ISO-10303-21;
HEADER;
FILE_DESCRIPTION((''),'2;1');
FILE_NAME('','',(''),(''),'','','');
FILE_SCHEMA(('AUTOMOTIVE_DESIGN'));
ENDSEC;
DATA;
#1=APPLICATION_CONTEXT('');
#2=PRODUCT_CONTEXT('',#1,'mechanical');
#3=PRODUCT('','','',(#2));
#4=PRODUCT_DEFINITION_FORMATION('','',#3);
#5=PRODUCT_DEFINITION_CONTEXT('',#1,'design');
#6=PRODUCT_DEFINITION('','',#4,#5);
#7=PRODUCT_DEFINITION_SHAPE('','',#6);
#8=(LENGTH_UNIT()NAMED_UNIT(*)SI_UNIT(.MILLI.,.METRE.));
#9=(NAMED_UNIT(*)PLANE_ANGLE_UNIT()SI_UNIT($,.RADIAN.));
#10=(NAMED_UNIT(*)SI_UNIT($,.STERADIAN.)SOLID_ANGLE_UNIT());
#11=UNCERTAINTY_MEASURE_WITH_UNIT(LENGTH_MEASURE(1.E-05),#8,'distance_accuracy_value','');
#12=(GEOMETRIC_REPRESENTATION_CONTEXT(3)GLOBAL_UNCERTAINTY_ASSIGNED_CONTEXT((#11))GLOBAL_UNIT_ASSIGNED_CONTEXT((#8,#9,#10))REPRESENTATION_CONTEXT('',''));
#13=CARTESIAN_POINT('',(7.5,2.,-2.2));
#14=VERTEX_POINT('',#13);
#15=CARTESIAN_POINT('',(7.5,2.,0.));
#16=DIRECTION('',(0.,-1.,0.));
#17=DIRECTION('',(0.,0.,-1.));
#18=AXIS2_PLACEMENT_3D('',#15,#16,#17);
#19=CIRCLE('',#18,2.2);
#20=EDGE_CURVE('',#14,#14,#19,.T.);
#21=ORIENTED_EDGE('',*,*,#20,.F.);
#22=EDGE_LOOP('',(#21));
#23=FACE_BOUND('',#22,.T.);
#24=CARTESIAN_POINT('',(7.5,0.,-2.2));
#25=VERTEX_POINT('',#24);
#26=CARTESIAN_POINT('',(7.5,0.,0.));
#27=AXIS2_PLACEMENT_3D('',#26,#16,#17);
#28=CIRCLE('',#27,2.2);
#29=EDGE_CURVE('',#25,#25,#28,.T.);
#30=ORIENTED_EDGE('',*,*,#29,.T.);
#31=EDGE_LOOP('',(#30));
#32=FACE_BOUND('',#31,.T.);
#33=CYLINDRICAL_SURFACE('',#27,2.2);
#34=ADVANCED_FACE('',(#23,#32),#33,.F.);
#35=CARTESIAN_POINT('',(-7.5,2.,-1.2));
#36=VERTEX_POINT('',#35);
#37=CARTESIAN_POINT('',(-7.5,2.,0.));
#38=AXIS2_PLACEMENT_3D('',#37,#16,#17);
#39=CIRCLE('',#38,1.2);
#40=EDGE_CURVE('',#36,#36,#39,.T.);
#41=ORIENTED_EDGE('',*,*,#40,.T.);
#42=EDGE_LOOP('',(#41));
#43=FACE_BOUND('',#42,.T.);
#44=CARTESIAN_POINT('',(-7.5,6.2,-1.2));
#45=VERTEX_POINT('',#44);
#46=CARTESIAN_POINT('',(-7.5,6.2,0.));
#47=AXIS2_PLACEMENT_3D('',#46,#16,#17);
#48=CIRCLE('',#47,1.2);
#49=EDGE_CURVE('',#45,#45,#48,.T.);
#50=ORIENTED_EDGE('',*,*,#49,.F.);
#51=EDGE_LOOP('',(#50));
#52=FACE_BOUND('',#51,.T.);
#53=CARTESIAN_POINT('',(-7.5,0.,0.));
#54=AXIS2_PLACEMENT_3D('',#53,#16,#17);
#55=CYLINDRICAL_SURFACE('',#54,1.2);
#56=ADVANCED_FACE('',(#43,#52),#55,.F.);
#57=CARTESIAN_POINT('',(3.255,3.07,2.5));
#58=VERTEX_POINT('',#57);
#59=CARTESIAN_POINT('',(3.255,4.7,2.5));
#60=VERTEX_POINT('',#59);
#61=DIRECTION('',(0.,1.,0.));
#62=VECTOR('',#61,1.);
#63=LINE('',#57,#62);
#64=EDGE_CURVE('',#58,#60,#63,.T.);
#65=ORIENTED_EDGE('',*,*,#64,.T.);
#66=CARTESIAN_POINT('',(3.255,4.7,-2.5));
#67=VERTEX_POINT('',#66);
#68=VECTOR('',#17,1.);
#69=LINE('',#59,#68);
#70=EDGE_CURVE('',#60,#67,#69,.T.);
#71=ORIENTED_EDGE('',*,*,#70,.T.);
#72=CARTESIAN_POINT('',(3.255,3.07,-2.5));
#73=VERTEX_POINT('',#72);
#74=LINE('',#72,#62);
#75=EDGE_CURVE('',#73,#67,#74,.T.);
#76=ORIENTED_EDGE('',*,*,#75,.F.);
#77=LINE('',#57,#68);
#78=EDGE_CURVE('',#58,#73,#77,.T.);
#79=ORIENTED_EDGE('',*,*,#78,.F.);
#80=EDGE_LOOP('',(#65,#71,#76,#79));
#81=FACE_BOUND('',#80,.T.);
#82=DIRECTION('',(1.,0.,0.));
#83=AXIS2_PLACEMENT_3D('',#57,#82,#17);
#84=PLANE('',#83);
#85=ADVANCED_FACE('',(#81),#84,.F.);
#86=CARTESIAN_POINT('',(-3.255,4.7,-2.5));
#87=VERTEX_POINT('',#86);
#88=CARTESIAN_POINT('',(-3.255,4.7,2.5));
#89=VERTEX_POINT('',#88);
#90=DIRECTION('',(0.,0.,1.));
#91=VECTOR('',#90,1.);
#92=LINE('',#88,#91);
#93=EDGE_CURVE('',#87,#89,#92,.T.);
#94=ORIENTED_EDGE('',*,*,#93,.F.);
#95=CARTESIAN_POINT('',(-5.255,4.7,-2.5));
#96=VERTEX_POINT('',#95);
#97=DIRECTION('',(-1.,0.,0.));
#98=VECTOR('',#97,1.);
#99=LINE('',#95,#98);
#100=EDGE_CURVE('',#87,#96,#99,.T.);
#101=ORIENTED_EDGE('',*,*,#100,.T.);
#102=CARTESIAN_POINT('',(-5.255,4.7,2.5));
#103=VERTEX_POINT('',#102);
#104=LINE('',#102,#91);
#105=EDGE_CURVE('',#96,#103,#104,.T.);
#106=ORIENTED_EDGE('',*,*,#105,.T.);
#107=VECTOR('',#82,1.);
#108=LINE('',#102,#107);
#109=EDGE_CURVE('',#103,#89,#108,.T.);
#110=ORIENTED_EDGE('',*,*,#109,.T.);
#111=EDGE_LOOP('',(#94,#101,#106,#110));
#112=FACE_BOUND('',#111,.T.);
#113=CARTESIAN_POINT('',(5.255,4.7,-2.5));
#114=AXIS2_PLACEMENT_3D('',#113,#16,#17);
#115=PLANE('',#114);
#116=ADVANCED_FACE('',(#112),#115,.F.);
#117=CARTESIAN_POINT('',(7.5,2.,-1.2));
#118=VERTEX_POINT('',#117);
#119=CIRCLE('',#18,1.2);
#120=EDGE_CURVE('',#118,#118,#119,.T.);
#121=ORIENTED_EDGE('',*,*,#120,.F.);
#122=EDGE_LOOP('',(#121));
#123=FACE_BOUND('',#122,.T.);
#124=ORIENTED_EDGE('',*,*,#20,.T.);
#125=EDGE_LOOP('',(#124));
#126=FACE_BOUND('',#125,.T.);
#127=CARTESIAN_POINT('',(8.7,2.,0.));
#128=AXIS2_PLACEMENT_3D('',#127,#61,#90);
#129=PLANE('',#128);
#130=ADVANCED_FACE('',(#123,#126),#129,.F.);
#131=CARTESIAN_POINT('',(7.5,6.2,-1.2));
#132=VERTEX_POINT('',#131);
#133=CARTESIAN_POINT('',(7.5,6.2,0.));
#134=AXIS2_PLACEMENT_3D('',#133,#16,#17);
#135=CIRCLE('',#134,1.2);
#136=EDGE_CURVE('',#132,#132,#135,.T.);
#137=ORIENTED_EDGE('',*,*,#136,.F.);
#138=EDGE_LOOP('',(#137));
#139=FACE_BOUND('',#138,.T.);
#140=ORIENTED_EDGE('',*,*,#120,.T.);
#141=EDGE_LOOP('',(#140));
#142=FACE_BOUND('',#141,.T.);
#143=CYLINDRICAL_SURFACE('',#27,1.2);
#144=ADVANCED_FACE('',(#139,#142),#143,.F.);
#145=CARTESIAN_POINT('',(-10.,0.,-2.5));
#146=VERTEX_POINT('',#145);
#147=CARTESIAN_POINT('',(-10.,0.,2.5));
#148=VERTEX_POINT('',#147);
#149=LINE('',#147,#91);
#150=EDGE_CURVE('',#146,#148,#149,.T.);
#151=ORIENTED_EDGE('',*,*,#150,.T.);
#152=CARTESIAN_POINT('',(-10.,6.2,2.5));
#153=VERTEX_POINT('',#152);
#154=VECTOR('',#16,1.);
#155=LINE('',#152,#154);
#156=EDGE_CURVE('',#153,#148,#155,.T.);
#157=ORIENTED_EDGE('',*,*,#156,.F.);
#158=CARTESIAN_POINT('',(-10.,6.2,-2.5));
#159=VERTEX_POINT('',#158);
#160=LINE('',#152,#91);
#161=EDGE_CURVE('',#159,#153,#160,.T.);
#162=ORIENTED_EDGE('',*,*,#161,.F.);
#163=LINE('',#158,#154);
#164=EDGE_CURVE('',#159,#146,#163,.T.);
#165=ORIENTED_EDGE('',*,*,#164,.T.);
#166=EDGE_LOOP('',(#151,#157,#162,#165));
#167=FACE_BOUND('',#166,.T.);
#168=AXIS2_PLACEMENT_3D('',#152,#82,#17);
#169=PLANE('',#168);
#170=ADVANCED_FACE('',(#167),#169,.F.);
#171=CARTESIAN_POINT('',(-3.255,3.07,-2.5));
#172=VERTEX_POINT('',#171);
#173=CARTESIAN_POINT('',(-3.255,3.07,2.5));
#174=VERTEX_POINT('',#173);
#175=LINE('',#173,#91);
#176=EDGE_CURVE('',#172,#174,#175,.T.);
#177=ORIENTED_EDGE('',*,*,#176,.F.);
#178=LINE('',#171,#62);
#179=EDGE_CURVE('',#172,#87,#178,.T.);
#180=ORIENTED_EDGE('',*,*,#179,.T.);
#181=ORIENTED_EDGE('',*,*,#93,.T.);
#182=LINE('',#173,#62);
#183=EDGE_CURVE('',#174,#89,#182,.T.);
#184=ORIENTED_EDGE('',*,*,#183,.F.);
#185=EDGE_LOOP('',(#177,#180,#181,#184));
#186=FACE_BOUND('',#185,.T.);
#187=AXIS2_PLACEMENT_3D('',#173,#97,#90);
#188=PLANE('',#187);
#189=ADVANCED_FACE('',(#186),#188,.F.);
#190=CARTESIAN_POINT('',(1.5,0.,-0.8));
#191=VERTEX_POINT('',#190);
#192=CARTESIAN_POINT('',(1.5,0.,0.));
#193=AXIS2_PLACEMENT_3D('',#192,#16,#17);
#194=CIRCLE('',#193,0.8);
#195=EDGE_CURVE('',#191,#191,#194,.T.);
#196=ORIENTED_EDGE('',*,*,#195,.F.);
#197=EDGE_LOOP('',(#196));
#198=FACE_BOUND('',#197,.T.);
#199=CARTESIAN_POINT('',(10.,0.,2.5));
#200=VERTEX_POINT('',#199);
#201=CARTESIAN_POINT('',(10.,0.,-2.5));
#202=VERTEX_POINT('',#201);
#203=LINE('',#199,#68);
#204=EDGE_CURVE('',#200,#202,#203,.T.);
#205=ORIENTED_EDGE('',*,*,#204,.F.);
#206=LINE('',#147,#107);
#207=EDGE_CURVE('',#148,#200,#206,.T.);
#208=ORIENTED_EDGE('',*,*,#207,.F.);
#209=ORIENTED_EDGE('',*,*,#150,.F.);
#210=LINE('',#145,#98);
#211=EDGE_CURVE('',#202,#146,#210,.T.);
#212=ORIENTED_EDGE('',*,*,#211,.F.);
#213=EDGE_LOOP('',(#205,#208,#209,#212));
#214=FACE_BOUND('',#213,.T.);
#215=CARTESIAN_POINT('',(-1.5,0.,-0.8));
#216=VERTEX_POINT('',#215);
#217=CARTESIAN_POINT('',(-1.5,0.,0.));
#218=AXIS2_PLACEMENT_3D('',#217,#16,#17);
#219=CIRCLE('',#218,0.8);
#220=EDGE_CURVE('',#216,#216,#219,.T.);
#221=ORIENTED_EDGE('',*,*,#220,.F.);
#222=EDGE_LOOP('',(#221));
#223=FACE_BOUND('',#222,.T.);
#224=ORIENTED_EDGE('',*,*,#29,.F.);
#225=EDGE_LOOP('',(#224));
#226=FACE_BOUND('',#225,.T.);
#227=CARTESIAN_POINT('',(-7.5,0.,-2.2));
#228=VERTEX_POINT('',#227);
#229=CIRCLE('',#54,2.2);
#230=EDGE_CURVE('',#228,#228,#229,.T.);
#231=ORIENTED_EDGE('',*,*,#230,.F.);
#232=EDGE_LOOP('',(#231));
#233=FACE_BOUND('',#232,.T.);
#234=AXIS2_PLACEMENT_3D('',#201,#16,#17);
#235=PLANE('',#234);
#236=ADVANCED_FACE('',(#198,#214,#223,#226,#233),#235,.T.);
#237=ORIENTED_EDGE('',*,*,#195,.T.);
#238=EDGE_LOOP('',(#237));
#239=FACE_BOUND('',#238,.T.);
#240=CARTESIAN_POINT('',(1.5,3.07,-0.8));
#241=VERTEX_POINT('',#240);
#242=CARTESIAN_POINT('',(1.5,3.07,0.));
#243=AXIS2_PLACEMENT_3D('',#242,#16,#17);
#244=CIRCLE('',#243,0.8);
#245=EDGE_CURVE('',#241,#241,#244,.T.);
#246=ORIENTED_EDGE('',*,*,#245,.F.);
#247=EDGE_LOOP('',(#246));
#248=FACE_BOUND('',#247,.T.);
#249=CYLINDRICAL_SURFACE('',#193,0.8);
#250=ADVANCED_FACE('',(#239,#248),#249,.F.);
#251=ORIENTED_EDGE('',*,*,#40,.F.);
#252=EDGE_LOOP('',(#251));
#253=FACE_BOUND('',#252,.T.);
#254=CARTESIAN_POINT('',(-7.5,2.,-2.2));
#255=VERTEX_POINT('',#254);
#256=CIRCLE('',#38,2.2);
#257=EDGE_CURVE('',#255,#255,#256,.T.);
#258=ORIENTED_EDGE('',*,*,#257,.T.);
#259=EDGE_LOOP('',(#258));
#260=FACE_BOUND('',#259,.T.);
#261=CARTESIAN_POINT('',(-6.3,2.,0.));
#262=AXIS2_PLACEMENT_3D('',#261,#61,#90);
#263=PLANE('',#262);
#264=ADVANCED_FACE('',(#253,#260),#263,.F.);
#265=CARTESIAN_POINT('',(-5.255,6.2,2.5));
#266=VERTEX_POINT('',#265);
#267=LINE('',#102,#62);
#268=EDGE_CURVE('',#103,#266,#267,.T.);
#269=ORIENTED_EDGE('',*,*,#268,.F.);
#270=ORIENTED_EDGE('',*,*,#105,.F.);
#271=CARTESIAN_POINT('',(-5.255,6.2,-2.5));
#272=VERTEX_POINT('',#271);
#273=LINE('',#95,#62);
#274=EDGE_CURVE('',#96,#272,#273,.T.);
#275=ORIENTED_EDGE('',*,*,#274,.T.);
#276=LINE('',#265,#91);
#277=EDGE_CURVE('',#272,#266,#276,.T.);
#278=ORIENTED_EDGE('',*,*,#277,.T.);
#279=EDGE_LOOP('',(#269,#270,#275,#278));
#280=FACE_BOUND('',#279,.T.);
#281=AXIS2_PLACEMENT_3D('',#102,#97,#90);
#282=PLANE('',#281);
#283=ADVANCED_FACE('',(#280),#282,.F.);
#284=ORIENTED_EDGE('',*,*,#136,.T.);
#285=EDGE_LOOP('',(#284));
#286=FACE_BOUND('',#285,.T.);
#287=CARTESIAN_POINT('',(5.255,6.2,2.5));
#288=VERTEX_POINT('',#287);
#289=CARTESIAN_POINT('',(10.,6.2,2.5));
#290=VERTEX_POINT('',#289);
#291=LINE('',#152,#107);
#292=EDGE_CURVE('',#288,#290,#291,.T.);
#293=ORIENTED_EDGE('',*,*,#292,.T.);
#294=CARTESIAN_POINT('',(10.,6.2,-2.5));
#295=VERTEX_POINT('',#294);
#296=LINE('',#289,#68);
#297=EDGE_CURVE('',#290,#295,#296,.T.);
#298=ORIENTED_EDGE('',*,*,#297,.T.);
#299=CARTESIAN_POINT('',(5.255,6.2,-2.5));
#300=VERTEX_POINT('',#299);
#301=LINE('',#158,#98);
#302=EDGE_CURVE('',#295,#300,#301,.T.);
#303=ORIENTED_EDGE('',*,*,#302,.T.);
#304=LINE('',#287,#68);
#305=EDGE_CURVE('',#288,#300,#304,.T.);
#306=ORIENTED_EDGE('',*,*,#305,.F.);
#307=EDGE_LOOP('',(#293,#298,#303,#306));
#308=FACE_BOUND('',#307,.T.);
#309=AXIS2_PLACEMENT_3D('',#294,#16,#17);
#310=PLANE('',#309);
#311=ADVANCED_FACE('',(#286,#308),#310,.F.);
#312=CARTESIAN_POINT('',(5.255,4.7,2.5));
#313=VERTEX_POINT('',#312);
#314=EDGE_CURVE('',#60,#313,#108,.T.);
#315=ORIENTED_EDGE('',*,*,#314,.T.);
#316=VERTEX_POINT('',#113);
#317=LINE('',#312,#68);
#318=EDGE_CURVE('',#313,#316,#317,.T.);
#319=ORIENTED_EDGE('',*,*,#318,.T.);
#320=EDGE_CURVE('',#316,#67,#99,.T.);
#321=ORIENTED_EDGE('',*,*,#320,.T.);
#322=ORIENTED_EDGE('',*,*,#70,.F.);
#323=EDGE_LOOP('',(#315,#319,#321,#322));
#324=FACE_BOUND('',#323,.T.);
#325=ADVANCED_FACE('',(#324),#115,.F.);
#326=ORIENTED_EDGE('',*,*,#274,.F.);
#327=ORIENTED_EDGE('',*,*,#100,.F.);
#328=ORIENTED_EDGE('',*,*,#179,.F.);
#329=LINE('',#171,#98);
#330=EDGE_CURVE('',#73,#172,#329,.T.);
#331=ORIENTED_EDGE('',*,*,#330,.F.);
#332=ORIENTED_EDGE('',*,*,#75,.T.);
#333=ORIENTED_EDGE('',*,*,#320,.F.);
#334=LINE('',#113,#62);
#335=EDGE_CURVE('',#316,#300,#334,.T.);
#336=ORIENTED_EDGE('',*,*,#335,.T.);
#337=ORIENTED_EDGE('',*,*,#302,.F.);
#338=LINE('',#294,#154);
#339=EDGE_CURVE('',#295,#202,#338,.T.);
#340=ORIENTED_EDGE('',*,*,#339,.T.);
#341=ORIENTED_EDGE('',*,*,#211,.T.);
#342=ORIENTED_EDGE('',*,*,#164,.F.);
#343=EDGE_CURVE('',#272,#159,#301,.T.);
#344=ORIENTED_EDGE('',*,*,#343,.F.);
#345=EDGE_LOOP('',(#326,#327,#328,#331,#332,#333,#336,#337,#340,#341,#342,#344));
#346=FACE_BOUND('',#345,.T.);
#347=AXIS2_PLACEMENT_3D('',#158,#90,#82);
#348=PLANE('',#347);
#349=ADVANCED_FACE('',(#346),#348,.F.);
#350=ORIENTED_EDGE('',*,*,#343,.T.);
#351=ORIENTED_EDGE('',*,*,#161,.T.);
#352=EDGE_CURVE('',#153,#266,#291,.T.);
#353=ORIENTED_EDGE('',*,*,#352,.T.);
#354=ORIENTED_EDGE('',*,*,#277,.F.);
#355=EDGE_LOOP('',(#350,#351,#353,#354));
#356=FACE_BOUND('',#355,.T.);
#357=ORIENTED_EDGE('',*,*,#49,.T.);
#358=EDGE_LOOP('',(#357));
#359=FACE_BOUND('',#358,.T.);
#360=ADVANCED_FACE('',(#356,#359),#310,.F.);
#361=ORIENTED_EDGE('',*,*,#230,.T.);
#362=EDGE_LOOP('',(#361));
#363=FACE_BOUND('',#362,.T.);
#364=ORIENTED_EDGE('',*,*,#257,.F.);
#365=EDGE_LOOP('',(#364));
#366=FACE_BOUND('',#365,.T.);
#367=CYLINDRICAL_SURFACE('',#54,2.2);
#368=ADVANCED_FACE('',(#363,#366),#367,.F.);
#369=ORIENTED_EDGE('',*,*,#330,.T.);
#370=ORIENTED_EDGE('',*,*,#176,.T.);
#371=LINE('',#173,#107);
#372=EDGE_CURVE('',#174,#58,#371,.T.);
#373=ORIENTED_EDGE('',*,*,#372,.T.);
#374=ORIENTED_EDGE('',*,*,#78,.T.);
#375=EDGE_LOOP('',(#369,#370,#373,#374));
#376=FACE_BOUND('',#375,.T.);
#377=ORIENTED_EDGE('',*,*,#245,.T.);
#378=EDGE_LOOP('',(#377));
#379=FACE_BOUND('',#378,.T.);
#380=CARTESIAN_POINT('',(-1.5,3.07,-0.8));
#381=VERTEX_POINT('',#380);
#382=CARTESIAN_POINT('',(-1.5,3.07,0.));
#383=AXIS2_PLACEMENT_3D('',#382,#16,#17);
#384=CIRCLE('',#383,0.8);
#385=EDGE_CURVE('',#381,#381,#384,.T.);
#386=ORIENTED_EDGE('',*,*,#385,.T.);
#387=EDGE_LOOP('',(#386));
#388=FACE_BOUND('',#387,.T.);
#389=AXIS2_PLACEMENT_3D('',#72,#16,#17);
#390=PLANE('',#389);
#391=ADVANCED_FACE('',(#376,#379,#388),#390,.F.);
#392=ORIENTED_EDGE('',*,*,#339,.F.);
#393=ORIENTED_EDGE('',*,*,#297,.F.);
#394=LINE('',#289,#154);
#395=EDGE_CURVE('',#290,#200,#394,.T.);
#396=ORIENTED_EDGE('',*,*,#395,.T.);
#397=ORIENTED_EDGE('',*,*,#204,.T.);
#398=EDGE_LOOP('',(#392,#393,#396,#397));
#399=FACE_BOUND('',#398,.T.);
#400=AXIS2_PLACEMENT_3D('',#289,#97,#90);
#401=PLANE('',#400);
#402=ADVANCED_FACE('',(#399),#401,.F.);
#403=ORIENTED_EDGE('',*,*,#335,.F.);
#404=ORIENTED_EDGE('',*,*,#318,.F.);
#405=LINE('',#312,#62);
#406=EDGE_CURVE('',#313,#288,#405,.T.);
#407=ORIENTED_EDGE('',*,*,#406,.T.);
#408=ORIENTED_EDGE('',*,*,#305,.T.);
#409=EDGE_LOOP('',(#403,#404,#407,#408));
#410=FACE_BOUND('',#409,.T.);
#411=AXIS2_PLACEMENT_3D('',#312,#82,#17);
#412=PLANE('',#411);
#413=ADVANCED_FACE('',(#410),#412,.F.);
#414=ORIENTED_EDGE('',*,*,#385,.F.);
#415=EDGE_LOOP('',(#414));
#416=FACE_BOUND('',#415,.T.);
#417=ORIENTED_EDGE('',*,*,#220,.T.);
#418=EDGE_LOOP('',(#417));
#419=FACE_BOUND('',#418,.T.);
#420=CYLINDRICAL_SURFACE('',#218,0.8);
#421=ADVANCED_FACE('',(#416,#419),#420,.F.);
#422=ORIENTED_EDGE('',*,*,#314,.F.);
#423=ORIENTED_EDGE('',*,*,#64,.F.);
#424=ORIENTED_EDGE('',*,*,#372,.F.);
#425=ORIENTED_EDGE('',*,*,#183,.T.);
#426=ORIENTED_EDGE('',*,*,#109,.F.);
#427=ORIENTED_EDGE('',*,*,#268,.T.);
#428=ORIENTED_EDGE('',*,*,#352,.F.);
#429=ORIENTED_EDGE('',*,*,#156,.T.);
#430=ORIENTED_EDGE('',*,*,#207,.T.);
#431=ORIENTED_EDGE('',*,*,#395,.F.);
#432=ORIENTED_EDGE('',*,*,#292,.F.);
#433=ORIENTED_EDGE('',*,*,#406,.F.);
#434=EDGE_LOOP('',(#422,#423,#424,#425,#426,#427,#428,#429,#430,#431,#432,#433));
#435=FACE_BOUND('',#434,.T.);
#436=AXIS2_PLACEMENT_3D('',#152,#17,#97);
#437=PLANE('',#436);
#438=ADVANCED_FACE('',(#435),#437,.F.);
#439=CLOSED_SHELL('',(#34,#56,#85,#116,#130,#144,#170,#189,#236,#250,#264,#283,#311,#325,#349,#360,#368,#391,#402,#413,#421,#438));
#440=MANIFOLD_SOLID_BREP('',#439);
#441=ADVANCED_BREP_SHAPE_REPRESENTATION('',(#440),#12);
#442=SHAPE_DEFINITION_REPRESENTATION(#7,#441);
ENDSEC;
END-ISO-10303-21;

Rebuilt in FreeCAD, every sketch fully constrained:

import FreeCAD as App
import Part
import Sketcher

V = App.Vector

doc = App.newDocument("Part")
body = doc.addObject("PartDesign::Body", "Body")

# Sketch on XZ plane
sketch1 = body.newObject("Sketcher::SketchObject", "Sketch")
sketch1.AttachmentSupport = (doc.getObject("XZ_Plane"), [""])
sketch1.MapMode = "FlatFace"
sketch1.addGeometry([
    Part.LineSegment(V(-10, -2.5, 0), V(-10, 2.5, 0)),
    Part.LineSegment(V(-10, 2.5, 0), V(10, 2.5, 0)),
    Part.LineSegment(V(10, 2.5, 0), V(10, -2.5, 0)),
    Part.LineSegment(V(10, -2.5, 0), V(-10, -2.5, 0)),
], False)
sketch1.addConstraint([
    Sketcher.Constraint("Coincident", 0, 2, 1, 1),
    Sketcher.Constraint("Coincident", 1, 2, 2, 1),
    Sketcher.Constraint("Coincident", 2, 2, 3, 1),
    Sketcher.Constraint("Coincident", 3, 2, 0, 1),
    Sketcher.Constraint("Vertical", 0),
    Sketcher.Constraint("Horizontal", 1),
    Sketcher.Constraint("Vertical", 2),
    Sketcher.Constraint("Horizontal", 3),
    Sketcher.Constraint("Symmetric", 0, 2, 2, 2, -1, 1),
    Sketcher.Constraint("DistanceX", 1, 1, 1, 2, 20.0),
    Sketcher.Constraint("DistanceY", 0, 1, 0, 2, 5.0),
])
pad1 = body.newObject("PartDesign::Pad", "Pad")
pad1.Profile = sketch1
pad1.Length = 6.2
pad1.Reversed = True

# Sketch on XZ plane
sketch2 = body.newObject("Sketcher::SketchObject", "Sketch001")
sketch2.AttachmentSupport = (doc.getObject("XZ_Plane"), [""])
sketch2.MapMode = "FlatFace"
sketch2.AttachmentOffset = App.Placement(V(0, 0, -6.2), App.Rotation())
sketch2.addGeometry([
    Part.LineSegment(V(-5.255, -2.5, 0), V(-5.255, 2.5, 0)),
    Part.LineSegment(V(-5.255, 2.5, 0), V(5.255, 2.5, 0)),
    Part.LineSegment(V(5.255, 2.5, 0), V(5.255, -2.5, 0)),
    Part.LineSegment(V(5.255, -2.5, 0), V(-5.255, -2.5, 0)),
], False)
sketch2.addConstraint([
    Sketcher.Constraint("Coincident", 0, 2, 1, 1),
    Sketcher.Constraint("Coincident", 1, 2, 2, 1),
    Sketcher.Constraint("Coincident", 2, 2, 3, 1),
    Sketcher.Constraint("Coincident", 3, 2, 0, 1),
    Sketcher.Constraint("Vertical", 0),
    Sketcher.Constraint("Horizontal", 1),
    Sketcher.Constraint("Vertical", 2),
    Sketcher.Constraint("Horizontal", 3),
    Sketcher.Constraint("Symmetric", 0, 2, 2, 2, -1, 1),
    Sketcher.Constraint("DistanceY", 0, 1, 0, 2, 5.0),
    Sketcher.Constraint("DistanceX", 1, 1, 1, 2, 10.51),
])
pocket1 = body.newObject("PartDesign::Pocket", "Pocket")
pocket1.Profile = sketch2
pocket1.Length = 1.5
pocket1.Reversed = True

# Sketch on XZ plane
sketch3 = body.newObject("Sketcher::SketchObject", "Sketch002")
sketch3.AttachmentSupport = (doc.getObject("XZ_Plane"), [""])
sketch3.MapMode = "FlatFace"
sketch3.AttachmentOffset = App.Placement(V(0, 0, -4.7), App.Rotation())
sketch3.addGeometry([
    Part.LineSegment(V(-3.255, -2.5, 0), V(-3.255, 2.5, 0)),
    Part.LineSegment(V(-3.255, 2.5, 0), V(3.255, 2.5, 0)),
    Part.LineSegment(V(3.255, 2.5, 0), V(3.255, -2.5, 0)),
    Part.LineSegment(V(3.255, -2.5, 0), V(-3.255, -2.5, 0)),
], False)
sketch3.addConstraint([
    Sketcher.Constraint("Coincident", 0, 2, 1, 1),
    Sketcher.Constraint("Coincident", 1, 2, 2, 1),
    Sketcher.Constraint("Coincident", 2, 2, 3, 1),
    Sketcher.Constraint("Coincident", 3, 2, 0, 1),
    Sketcher.Constraint("Vertical", 0),
    Sketcher.Constraint("Horizontal", 1),
    Sketcher.Constraint("Vertical", 2),
    Sketcher.Constraint("Horizontal", 3),
    Sketcher.Constraint("Symmetric", 0, 2, 2, 2, -1, 1),
    Sketcher.Constraint("DistanceY", 0, 1, 0, 2, 5.0),
    Sketcher.Constraint("DistanceX", 1, 1, 1, 2, 6.51),
])
pocket2 = body.newObject("PartDesign::Pocket", "Pocket001")
pocket2.Profile = sketch3
pocket2.Length = 1.63
pocket2.Reversed = True

# Sketch on XZ plane
sketch4 = body.newObject("Sketcher::SketchObject", "Sketch003")
sketch4.AttachmentSupport = (doc.getObject("XZ_Plane"), [""])
sketch4.MapMode = "FlatFace"
sketch4.addGeometry(Part.Circle(V(-7.5, 0, 0), V(0, 0, 1), 1.2), False)
sketch4.addConstraint([
    Sketcher.Constraint("PointOnObject", 0, 3, -1),
    Sketcher.Constraint("Diameter", 0, 2.4),
    Sketcher.Constraint("DistanceX", 0, 3, -1, 1, 7.5),
])
doc.recompute()
hole = body.newObject("PartDesign::Hole", "Hole")
hole.Profile = sketch4
hole.ThreadType = "None"
hole.Diameter = 2.4
hole.DepthType = "ThroughAll"
hole.HoleCutType = "Counterbore"
hole.HoleCutDiameter = 4.4
hole.HoleCutDepth = 2
doc.recompute()

linearpattern = body.newObject("PartDesign::LinearPattern", "LinearPattern")
linearpattern.Originals = [hole]
linearpattern.Direction = (doc.getObject("X_Axis"), [""])
linearpattern.Mode = "offset"
linearpattern.Offset = 15
linearpattern.Occurrences = 2
body.Tip = linearpattern

# Sketch on XZ plane
sketch5 = body.newObject("Sketcher::SketchObject", "Sketch004")
sketch5.AttachmentSupport = (doc.getObject("XZ_Plane"), [""])
sketch5.MapMode = "FlatFace"
sketch5.addGeometry(Part.Circle(V(-1.5, 0, 0), V(0, 0, 1), 0.8), False)
sketch5.addConstraint([
    Sketcher.Constraint("PointOnObject", 0, 3, -1),
    Sketcher.Constraint("Diameter", 0, 1.6),
    Sketcher.Constraint("DistanceX", 0, 3, -1, 1, 1.5),
])
doc.recompute()
hole2 = body.newObject("PartDesign::Hole", "Hole001")
hole2.Profile = sketch5
hole2.ThreadType = "None"
hole2.Diameter = 1.6
hole2.DepthType = "ThroughAll"
doc.recompute()

linearpattern2 = body.newObject("PartDesign::LinearPattern", "LinearPattern001")
linearpattern2.Originals = [hole2]
linearpattern2.Direction = (doc.getObject("X_Axis"), [""])
linearpattern2.Mode = "offset"
linearpattern2.Offset = 3
linearpattern2.Occurrences = 2
body.Tip = linearpattern2

doc.recompute()
